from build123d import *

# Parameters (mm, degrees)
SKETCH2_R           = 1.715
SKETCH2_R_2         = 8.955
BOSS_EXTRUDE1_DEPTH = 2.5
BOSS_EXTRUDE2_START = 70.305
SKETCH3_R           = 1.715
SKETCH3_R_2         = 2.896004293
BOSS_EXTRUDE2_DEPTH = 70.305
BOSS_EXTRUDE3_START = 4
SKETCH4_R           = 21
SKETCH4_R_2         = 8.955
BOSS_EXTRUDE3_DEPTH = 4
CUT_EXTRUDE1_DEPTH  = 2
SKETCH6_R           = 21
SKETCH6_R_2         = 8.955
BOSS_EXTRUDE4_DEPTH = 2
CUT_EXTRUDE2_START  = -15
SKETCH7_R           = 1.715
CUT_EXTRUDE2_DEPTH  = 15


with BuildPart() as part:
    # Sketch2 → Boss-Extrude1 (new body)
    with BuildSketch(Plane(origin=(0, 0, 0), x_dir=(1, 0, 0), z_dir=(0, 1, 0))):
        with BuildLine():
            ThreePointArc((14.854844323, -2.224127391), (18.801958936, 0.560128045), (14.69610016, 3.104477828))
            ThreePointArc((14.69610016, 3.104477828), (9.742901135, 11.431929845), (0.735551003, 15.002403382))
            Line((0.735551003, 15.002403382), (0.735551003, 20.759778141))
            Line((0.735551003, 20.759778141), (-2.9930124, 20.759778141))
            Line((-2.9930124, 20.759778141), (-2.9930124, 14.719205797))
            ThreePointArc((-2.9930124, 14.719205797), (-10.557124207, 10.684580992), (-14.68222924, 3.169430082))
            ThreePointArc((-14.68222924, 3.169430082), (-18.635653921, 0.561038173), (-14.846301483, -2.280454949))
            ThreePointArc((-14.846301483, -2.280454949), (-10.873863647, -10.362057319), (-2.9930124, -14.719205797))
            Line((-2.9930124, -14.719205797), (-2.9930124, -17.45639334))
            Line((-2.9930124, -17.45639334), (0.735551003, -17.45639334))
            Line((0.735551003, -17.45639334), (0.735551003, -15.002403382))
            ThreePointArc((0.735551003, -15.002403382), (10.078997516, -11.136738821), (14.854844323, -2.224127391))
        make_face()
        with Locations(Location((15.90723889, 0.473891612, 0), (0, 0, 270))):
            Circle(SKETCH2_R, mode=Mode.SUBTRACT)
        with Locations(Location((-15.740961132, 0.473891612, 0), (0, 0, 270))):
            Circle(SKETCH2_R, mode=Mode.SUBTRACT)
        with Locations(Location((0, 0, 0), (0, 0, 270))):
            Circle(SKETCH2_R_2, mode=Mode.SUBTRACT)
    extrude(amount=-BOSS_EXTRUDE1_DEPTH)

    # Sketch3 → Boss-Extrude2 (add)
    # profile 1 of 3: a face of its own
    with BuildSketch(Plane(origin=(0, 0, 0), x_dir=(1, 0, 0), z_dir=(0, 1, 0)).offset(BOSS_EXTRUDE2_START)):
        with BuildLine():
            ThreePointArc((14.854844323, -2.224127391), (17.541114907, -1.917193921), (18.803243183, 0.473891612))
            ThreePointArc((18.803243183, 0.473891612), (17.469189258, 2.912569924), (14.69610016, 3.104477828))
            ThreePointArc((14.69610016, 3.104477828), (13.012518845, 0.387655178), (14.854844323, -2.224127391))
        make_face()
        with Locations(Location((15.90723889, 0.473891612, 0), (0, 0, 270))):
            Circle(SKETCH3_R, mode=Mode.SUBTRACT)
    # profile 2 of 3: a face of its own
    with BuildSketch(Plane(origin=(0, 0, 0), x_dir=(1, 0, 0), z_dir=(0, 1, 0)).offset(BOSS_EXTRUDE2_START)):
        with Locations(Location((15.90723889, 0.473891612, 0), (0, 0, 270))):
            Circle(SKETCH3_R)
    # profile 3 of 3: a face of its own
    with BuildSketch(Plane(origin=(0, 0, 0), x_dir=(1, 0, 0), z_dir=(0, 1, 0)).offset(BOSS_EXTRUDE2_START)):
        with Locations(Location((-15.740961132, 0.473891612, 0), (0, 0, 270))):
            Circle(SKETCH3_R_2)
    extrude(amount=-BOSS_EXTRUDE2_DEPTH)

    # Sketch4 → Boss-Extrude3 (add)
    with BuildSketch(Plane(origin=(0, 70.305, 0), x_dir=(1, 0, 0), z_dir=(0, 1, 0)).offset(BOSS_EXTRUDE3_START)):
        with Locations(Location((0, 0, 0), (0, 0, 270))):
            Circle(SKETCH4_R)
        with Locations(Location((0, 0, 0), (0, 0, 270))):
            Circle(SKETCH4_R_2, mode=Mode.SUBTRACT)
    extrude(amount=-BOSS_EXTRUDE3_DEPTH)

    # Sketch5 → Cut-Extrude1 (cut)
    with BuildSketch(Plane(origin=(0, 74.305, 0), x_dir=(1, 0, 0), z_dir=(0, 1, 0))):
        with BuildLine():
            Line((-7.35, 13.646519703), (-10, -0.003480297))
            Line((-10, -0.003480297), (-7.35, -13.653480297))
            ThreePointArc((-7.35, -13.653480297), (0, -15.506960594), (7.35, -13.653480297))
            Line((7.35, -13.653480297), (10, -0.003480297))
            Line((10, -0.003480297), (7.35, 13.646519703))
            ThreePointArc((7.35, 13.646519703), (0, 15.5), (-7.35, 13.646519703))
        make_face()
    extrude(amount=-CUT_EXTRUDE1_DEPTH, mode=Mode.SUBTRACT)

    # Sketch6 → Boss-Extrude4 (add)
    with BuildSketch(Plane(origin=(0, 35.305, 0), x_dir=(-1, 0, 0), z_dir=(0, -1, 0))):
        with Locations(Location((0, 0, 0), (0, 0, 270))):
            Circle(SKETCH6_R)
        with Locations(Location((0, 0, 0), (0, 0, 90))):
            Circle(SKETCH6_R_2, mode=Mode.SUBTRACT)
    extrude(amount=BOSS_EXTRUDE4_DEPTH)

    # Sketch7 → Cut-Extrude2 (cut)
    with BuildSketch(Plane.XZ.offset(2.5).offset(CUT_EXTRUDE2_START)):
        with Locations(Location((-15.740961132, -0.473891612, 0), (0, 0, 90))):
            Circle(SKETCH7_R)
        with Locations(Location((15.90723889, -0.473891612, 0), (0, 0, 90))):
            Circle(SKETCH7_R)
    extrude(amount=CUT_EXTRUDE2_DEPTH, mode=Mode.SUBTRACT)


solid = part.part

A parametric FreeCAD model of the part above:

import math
import FreeCAD as App
import Part
import Sketcher
Q = App.Units.Quantity

doc = App.newDocument("Part")
params = doc.addObject("Spreadsheet::Sheet", "Params")
for row, (alias, value) in enumerate([
    ("sketch1_diameter", "3.43 mm"),
    ("sketch1_diameter2", "17.91 mm"),
    ("sketch1_diameter3", "3.43 mm"),
    ("pad1_length", "2.5 mm"),
    ("pad2_length", "70.305 mm"),
    ("sketch3_diameter", "42 mm"),
    ("sketch3_diameter2", "17.91 mm"),
    ("pad3_length", "4 mm"),
    ("sketch4_radius", "15.5 mm"),
    ("pocket1_length", "2 mm"),
    ("sketch5_diameter", "42 mm"),
    ("sketch5_diameter2", "17.91 mm"),
    ("pad4_length", "2 mm"),
    ("sketch6_diameter", "3.43 mm"),
    ("pocket2_length", "15 mm"),
], start=1):
    params.set(f"A{row}", alias)
    params.set(f"B{row}", "=" + value)
    params.setAlias(f"B{row}", alias)

body = doc.addObject("PartDesign::Body", "Body")

sketch1 = body.newObject("Sketcher::SketchObject", "Sketch")
sketch1.AttachmentSupport = (doc.getObject("XZ_Plane"), [""])
sketch1.MapMode = "FlatFace"
sketch1.addGeometry(Part.ArcOfCircle(Part.Circle(App.Vector(15.907239, -0.473892, 0), App.Vector(0, 0, 1), 2.896004), math.radians(-114.721646), math.radians(111.308865)), False)
sketch1.addGeometry(Part.ArcOfCircle(Part.Circle(App.Vector(0, 0, 0), App.Vector(0, 0, 1), 15.020424), math.radians(-87.1931), math.radians(-11.928083)), False)
sketch1.addGeometry(Part.LineSegment(App.Vector(0.735551, -15.002403, 0), App.Vector(0.735551, -20.759778, 0)), False)
sketch1.addGeometry(Part.LineSegment(App.Vector(0.735551, -20.759778, 0), App.Vector(-2.993012, -20.759778, 0)), False)
sketch1.addGeometry(Part.LineSegment(App.Vector(-2.993012, -20.759778, 0), App.Vector(-2.993012, -14.719206, 0)), False)
sketch1.addGeometry(Part.ArcOfCircle(Part.Circle(App.Vector(0, 0, 0), App.Vector(0, 0, 1), 15.020424), math.radians(-167.818568), math.radians(-101.493855)), False)
sketch1.addGeometry(Part.ArcOfCircle(Part.Circle(App.Vector(-15.740961, -0.473892, 0), App.Vector(0, 0, 1), 2.896004), math.radians(72.005302), math.radians(291.443507)), False)
sketch1.addGeometry(Part.ArcOfCircle(Part.Circle(App.Vector(0, 0, 0), App.Vector(0, 0, 1), 15.020424), math.radians(101.493855), math.radians(171.267378)), False)
sketch1.addGeometry(Part.LineSegment(App.Vector(-2.993012, 14.719206, 0), App.Vector(-2.993012, 17.456393, 0)), False)
sketch1.addGeometry(Part.LineSegment(App.Vector(-2.993012, 17.456393, 0), App.Vector(0.735551, 17.456393, 0)), False)
sketch1.addGeometry(Part.LineSegment(App.Vector(0.735551, 17.456393, 0), App.Vector(0.735551, 15.002403, 0)), False)
sketch1.addGeometry(Part.ArcOfCircle(Part.Circle(App.Vector(0, 0, 0), App.Vector(0, 0, 1), 15.020424), math.radians(8.515302), math.radians(87.1931)), False)
sketch1.addGeometry(Part.Circle(App.Vector(-15.740961, -0.473892, 0), App.Vector(0, 0, 1), 1.715), False)
sketch1.addGeometry(Part.Circle(App.Vector(0, 0, 0), App.Vector(0, 0, 1), 8.955), False)
sketch1.addGeometry(Part.Circle(App.Vector(15.907239, -0.473892, 0), App.Vector(0, 0, 1), 1.715), False)
sketch1.addConstraint(Sketcher.Constraint("Coincident", 0, 1, 1, 2))
sketch1.addConstraint(Sketcher.Constraint("Coincident", 1, 1, 2, 1))
sketch1.addConstraint(Sketcher.Constraint("Coincident", 2, 2, 3, 1))
sketch1.addConstraint(Sketcher.Constraint("Coincident", 3, 2, 4, 1))
sketch1.addConstraint(Sketcher.Constraint("Coincident", 4, 2, 5, 2))
sketch1.addConstraint(Sketcher.Constraint("Coincident", 5, 1, 6, 2))
sketch1.addConstraint(Sketcher.Constraint("Coincident", 6, 1, 7, 2))
sketch1.addConstraint(Sketcher.Constraint("Coincident", 7, 1, 8, 1))
sketch1.addConstraint(Sketcher.Constraint("Coincident", 8, 2, 9, 1))
sketch1.addConstraint(Sketcher.Constraint("Coincident", 9, 2, 10, 1))
sketch1.addConstraint(Sketcher.Constraint("Coincident", 10, 2, 11, 2))
sketch1.addConstraint(Sketcher.Constraint("Coincident", 11, 1, 0, 2))
sketch1.addConstraint(Sketcher.Constraint("Vertical", 2))
sketch1.addConstraint(Sketcher.Constraint("Horizontal", 3))
sketch1.addConstraint(Sketcher.Constraint("Vertical", 4))
sketch1.addConstraint(Sketcher.Constraint("Vertical", 8))
sketch1.addConstraint(Sketcher.Constraint("Horizontal", 9))
sketch1.addConstraint(Sketcher.Constraint("Vertical", 10))
sketch1.addConstraint(Sketcher.Constraint("Coincident", 1, 3, -1, 1))
sketch1.addConstraint(Sketcher.Constraint("Coincident", 5, 3, -1, 1))
sketch1.addConstraint(Sketcher.Constraint("Coincident", 7, 3, -1, 1))
sketch1.addConstraint(Sketcher.Constraint("Coincident", 11, 3, -1, 1))
sketch1.addConstraint(Sketcher.Constraint("Coincident", 13, 3, -1, 1))
sketch1.addConstraint(Sketcher.Constraint("Coincident", 12, 3, 6, 3))
sketch1.addConstraint(Sketcher.Constraint("Coincident", 14, 3, 0, 3))
sketch1.addConstraint(Sketcher.Constraint("Diameter", 12, Q("3.43 mm")))
sketch1.addConstraint(Sketcher.Constraint("Diameter", 13, Q("17.91 mm")))
sketch1.addConstraint(Sketcher.Constraint("Diameter", 14, Q("3.43 mm")))
sketch1.addConstraint(Sketcher.Constraint("Radius", 0, Q("2.896004 mm")))
sketch1.addConstraint(Sketcher.Constraint("Radius", 1, Q("15.020424 mm")))
sketch1.addConstraint(Sketcher.Constraint("Radius", 5, Q("15.020424 mm")))
sketch1.addConstraint(Sketcher.Constraint("Radius", 6, Q("2.896004 mm")))
sketch1.addConstraint(Sketcher.Constraint("Radius", 7, Q("15.020424 mm")))
sketch1.addConstraint(Sketcher.Constraint("Radius", 11, Q("15.020424 mm")))
sketch1.addConstraint(Sketcher.Constraint("DistanceY", 10, 2, 10, 1, Q("2.45399 mm")))
sketch1.addConstraint(Sketcher.Constraint("DistanceX", -1, 1, 0, 1, Q("14.6961 mm")))
sketch1.addConstraint(Sketcher.Constraint("DistanceX", 6, 1, -1, 1, Q("14.846301 mm")))
sketch1.addConstraint(Sketcher.Constraint("DistanceX", 6, 3, 0, 3, Q("31.6482 mm")))
sketch1.addConstraint(Sketcher.Constraint("DistanceX", 3, 2, 3, 1, Q("3.728563 mm")))
sketch1.addConstraint(Sketcher.Constraint("DistanceX", 9, 1, 9, 2, Q("3.728563 mm")))
sketch1.addConstraint(Sketcher.Constraint("DistanceY", 2, 2, 2, 1, Q("5.757375 mm")))
sketch1.addConstraint(Sketcher.Constraint("DistanceY", 4, 1, 4, 2, Q("6.040572 mm")))
sketch1.addConstraint(Sketcher.Constraint("DistanceY", 8, 1, 8, 2, Q("2.737188 mm")))
sketch1.addConstraint(Sketcher.Constraint("DistanceX", -1, 1, 0, 3, Q("15.907239 mm")))
sketch1.setExpression("Constraints[25]", "Params.sketch1_diameter")
sketch1.setExpression("Constraints[26]", "Params.sketch1_diameter2")
sketch1.setExpression("Constraints[27]", "Params.sketch1_diameter3")
pad1 = body.newObject("PartDesign::Pad", "Pad")
pad1.Profile = sketch1
pad1.setExpression("Length", "Params.pad1_length")

sketch2 = body.newObject("Sketcher::SketchObject", "Sketch001")
sketch2.AttachmentSupport = (doc.getObject("XZ_Plane"), [""])
sketch2.MapMode = "FlatFace"
sketch2.AttachmentOffset = App.Placement(App.Vector(0, 0, -70.305), App.Rotation())
sketch2.addGeometry(Part.ArcOfCircle(Part.Circle(App.Vector(15.9, -0.5, 0), App.Vector(0, 0, 1), 2.9), math.radians(0), math.radians(111)), False)
sketch2.addGeometry(Part.ArcOfCircle(Part.Circle(App.Vector(15.9, -0.5, 0), App.Vector(0, 0, 1), 2.9), math.radians(-115), math.radians(0)), False)
sketch2.addGeometry(Part.ArcOfCircle(Part.Circle(App.Vector(15.9, -0.5, 0), App.Vector(0, 0, 1), 2.9), math.radians(111), math.radians(245)), False)
sketch2.addGeometry(Part.Circle(App.Vector(-15.7, -0.5, 0), App.Vector(0, 0, 1), 2.9), False)
sketch2.addConstraint(Sketcher.Constraint("Tangent", 0, 1, 1, 2))
sketch2.addConstraint(Sketcher.Constraint("Tangent", 1, 1, 2, 2))
sketch2.addConstraint(Sketcher.Constraint("Tangent", 2, 1, 0, 2))
sketch2.addConstraint(Sketcher.Constraint("Equal", 2, 3))
sketch2.addConstraint(Sketcher.Constraint("Horizontal", 2, 3, 3, 3))
sketch2.addConstraint(Sketcher.Constraint("Horizontal", 3, 3, 0, 1))
sketch2.addConstraint(Sketcher.Constraint("Diameter", 3, Q("5.792009 mm")))
sketch2.addConstraint(Sketcher.Constraint("DistanceX", -1, 1, 1, 1, Q("14.6961 mm")))
sketch2.addConstraint(Sketcher.Constraint("DistanceX", 3, 3, 0, 3, Q("31.6482 mm")))
sketch2.addConstraint(Sketcher.Constraint("DistanceX", 2, 1, 0, 1, Q("3.948399 mm")))
sketch2.addConstraint(Sketcher.Constraint("DistanceX", -1, 1, 0, 3, Q("15.907239 mm")))
sketch2.addConstraint(Sketcher.Constraint("DistanceY", 0, 3, -1, 1, Q("0.473892 mm")))
pad2 = body.newObject("PartDesign::Pad", "Pad001")
pad2.Profile = sketch2
pad2.setExpression("Length", "Params.pad2_length")

sketch3 = body.newObject("Sketcher::SketchObject", "Sketch002")
sketch3.AttachmentSupport = (doc.getObject("XZ_Plane"), [""])
sketch3.MapMode = "FlatFace"
sketch3.AttachmentOffset = App.Placement(App.Vector(0, 0, -74.305), App.Rotation())
sketch3.addGeometry(Part.Circle(App.Vector(0, 0, 0), App.Vector(0, 0, 1), 21), False)
sketch3.addGeometry(Part.Circle(App.Vector(0, 0, 0), App.Vector(0, 0, 1), 9), False)
sketch3.addConstraint(Sketcher.Constraint("Coincident", 0, 3, -1, 1))
sketch3.addConstraint(Sketcher.Constraint("Coincident", 1, 3, -1, 1))
sketch3.addConstraint(Sketcher.Constraint("Diameter", 0, Q("42 mm")))
sketch3.addConstraint(Sketcher.Constraint("Diameter", 1, Q("17.91 mm")))
sketch3.setExpression("Constraints[2]", "Params.sketch3_diameter")
sketch3.setExpression("Constraints[3]", "Params.sketch3_diameter2")
pad3 = body.newObject("PartDesign::Pad", "Pad002")
pad3.Profile = sketch3
pad3.setExpression("Length", "Params.pad3_length")

sketch4 = body.newObject("Sketcher::SketchObject", "Sketch003")
sketch4.AttachmentSupport = (doc.getObject("XZ_Plane"), [""])
sketch4.MapMode = "FlatFace"
sketch4.AttachmentOffset = App.Placement(App.Vector(0, 0, -74.305), App.Rotation())
sketch4.addGeometry(Part.LineSegment(App.Vector(-7, -14, 0), App.Vector(-10, 0, 0)), False)
sketch4.addGeometry(Part.LineSegment(App.Vector(-10, 0, 0), App.Vector(-7, 14, 0)), False)
sketch4.addGeometry(Part.ArcOfCircle(Part.Circle(App.Vector(0, 0, 0), App.Vector(0, 0, 1), 16), math.radians(62), math.radians(118)), False)
sketch4.addGeometry(Part.LineSegment(App.Vector(7, 14, 0), App.Vector(10, 0, 0)), False)
sketch4.addGeometry(Part.LineSegment(App.Vector(10, 0, 0), App.Vector(7, -14, 0)), False)
sketch4.addGeometry(Part.ArcOfCircle(Part.Circle(App.Vector(0, 0, 0), App.Vector(0, 0, 1), 16), math.radians(-118), math.radians(-62)), False)
sketch4.addConstraint(Sketcher.Constraint("Coincident", 0, 2, 1, 1))
sketch4.addConstraint(Sketcher.Constraint("Coincident", 1, 2, 2, 2))
sketch4.addConstraint(Sketcher.Constraint("Coincident", 2, 1, 3, 1))
sketch4.addConstraint(Sketcher.Constraint("Coincident", 3, 2, 4, 1))
sketch4.addConstraint(Sketcher.Constraint("Coincident", 4, 2, 5, 2))
sketch4.addConstraint(Sketcher.Constraint("Coincident", 5, 1, 0, 1))
sketch4.addConstraint(Sketcher.Constraint("Coincident", 5, 3, -1, 1))
sketch4.addConstraint(Sketcher.Constraint("Equal", 2, 5))
sketch4.addConstraint(Sketcher.Constraint("Symmetric", 1, 2, 2, 1, -2))
sketch4.addConstraint(Sketcher.Constraint("Symmetric", 0, 2, 3, 2, -2))
sketch4.addConstraint(Sketcher.Constraint("Parallel", 0, 3))
sketch4.addConstraint(Sketcher.Constraint("Parallel", 1, 4))
sketch4.addConstraint(Sketcher.Constraint("Vertical", 2, 1, 4, 2))
sketch4.addConstraint(Sketcher.Constraint("Radius", 2, Q("15.5 mm")))
sketch4.addConstraint(Sketcher.Constraint("DistanceX", 0, 2, -1, 1, Q("10 mm")))
sketch4.addConstraint(Sketcher.Constraint("DistanceX", 1, 2, 2, 1, Q("14.7 mm")))
sketch4.addConstraint(Sketcher.Constraint("DistanceY", 4, 2, 2, 1, Q("27.3 mm")))
sketch4.setExpression("Constraints[13]", "Params.sketch4_radius")
pocket1 = body.newObject("PartDesign::Pocket", "Pocket")
pocket1.Profile = sketch4
pocket1.setExpression("Length", "Params.pocket1_length")
pocket1.Reversed = True

sketch5 = body.newObject("Sketcher::SketchObject", "Sketch004")
sketch5.AttachmentSupport = (doc.getObject("XZ_Plane"), [""])
sketch5.MapMode = "FlatFace"
sketch5.AttachmentOffset = App.Placement(App.Vector(0, 0, -35.305), App.Rotation())
sketch5.addGeometry(Part.Circle(App.Vector(0, 0, 0), App.Vector(0, 0, 1), 21), False)
sketch5.addGeometry(Part.Circle(App.Vector(0, 0, 0), App.Vector(0, 0, 1), 9), False)
sketch5.addConstraint(Sketcher.Constraint("Coincident", 0, 3, -1, 1))
sketch5.addConstraint(Sketcher.Constraint("Coincident", 1, 3, -1, 1))
sketch5.addConstraint(Sketcher.Constraint("Diameter", 0, Q("42 mm")))
sketch5.addConstraint(Sketcher.Constraint("Diameter", 1, Q("17.91 mm")))
sketch5.setExpression("Constraints[2]", "Params.sketch5_diameter")
sketch5.setExpression("Constraints[3]", "Params.sketch5_diameter2")
pad4 = body.newObject("PartDesign::Pad", "Pad003")
pad4.Profile = sketch5
pad4.setExpression("Length", "Params.pad4_length")

sketch6 = body.newObject("Sketcher::SketchObject", "Sketch005")
sketch6.AttachmentSupport = (doc.getObject("XZ_Plane"), [""])
sketch6.MapMode = "FlatFace"
sketch6.AttachmentOffset = App.Placement(App.Vector(0, 0, -12.5), App.Rotation())
sketch6.addGeometry(Part.Circle(App.Vector(-15.7, -0.5, 0), App.Vector(0, 0, 1), 1.7), False)
sketch6.addGeometry(Part.Circle(App.Vector(15.9, -0.5, 0), App.Vector(0, 0, 1), 1.7), False)
sketch6.addConstraint(Sketcher.Constraint("Equal", 0, 1))
sketch6.addConstraint(Sketcher.Constraint("Horizontal", 0, 3, 1, 3))
sketch6.addConstraint(Sketcher.Constraint("Diameter", 0, Q("3.43 mm")))
sketch6.addConstraint(Sketcher.Constraint("DistanceX", 0, 3, 1, 3, Q("31.6482 mm")))
sketch6.addConstraint(Sketcher.Constraint("DistanceX", 0, 3, -1, 1, Q("15.740961 mm")))
sketch6.addConstraint(Sketcher.Constraint("DistanceY", 0, 3, -1, 1, Q("0.473892 mm")))
sketch6.setExpression("Constraints[2]", "Params.sketch6_diameter")
pocket2 = body.newObject("PartDesign::Pocket", "Pocket001")
pocket2.Profile = sketch6
pocket2.setExpression("Length", "Params.pocket2_length")
pocket2.Reversed = True

doc.recompute()
